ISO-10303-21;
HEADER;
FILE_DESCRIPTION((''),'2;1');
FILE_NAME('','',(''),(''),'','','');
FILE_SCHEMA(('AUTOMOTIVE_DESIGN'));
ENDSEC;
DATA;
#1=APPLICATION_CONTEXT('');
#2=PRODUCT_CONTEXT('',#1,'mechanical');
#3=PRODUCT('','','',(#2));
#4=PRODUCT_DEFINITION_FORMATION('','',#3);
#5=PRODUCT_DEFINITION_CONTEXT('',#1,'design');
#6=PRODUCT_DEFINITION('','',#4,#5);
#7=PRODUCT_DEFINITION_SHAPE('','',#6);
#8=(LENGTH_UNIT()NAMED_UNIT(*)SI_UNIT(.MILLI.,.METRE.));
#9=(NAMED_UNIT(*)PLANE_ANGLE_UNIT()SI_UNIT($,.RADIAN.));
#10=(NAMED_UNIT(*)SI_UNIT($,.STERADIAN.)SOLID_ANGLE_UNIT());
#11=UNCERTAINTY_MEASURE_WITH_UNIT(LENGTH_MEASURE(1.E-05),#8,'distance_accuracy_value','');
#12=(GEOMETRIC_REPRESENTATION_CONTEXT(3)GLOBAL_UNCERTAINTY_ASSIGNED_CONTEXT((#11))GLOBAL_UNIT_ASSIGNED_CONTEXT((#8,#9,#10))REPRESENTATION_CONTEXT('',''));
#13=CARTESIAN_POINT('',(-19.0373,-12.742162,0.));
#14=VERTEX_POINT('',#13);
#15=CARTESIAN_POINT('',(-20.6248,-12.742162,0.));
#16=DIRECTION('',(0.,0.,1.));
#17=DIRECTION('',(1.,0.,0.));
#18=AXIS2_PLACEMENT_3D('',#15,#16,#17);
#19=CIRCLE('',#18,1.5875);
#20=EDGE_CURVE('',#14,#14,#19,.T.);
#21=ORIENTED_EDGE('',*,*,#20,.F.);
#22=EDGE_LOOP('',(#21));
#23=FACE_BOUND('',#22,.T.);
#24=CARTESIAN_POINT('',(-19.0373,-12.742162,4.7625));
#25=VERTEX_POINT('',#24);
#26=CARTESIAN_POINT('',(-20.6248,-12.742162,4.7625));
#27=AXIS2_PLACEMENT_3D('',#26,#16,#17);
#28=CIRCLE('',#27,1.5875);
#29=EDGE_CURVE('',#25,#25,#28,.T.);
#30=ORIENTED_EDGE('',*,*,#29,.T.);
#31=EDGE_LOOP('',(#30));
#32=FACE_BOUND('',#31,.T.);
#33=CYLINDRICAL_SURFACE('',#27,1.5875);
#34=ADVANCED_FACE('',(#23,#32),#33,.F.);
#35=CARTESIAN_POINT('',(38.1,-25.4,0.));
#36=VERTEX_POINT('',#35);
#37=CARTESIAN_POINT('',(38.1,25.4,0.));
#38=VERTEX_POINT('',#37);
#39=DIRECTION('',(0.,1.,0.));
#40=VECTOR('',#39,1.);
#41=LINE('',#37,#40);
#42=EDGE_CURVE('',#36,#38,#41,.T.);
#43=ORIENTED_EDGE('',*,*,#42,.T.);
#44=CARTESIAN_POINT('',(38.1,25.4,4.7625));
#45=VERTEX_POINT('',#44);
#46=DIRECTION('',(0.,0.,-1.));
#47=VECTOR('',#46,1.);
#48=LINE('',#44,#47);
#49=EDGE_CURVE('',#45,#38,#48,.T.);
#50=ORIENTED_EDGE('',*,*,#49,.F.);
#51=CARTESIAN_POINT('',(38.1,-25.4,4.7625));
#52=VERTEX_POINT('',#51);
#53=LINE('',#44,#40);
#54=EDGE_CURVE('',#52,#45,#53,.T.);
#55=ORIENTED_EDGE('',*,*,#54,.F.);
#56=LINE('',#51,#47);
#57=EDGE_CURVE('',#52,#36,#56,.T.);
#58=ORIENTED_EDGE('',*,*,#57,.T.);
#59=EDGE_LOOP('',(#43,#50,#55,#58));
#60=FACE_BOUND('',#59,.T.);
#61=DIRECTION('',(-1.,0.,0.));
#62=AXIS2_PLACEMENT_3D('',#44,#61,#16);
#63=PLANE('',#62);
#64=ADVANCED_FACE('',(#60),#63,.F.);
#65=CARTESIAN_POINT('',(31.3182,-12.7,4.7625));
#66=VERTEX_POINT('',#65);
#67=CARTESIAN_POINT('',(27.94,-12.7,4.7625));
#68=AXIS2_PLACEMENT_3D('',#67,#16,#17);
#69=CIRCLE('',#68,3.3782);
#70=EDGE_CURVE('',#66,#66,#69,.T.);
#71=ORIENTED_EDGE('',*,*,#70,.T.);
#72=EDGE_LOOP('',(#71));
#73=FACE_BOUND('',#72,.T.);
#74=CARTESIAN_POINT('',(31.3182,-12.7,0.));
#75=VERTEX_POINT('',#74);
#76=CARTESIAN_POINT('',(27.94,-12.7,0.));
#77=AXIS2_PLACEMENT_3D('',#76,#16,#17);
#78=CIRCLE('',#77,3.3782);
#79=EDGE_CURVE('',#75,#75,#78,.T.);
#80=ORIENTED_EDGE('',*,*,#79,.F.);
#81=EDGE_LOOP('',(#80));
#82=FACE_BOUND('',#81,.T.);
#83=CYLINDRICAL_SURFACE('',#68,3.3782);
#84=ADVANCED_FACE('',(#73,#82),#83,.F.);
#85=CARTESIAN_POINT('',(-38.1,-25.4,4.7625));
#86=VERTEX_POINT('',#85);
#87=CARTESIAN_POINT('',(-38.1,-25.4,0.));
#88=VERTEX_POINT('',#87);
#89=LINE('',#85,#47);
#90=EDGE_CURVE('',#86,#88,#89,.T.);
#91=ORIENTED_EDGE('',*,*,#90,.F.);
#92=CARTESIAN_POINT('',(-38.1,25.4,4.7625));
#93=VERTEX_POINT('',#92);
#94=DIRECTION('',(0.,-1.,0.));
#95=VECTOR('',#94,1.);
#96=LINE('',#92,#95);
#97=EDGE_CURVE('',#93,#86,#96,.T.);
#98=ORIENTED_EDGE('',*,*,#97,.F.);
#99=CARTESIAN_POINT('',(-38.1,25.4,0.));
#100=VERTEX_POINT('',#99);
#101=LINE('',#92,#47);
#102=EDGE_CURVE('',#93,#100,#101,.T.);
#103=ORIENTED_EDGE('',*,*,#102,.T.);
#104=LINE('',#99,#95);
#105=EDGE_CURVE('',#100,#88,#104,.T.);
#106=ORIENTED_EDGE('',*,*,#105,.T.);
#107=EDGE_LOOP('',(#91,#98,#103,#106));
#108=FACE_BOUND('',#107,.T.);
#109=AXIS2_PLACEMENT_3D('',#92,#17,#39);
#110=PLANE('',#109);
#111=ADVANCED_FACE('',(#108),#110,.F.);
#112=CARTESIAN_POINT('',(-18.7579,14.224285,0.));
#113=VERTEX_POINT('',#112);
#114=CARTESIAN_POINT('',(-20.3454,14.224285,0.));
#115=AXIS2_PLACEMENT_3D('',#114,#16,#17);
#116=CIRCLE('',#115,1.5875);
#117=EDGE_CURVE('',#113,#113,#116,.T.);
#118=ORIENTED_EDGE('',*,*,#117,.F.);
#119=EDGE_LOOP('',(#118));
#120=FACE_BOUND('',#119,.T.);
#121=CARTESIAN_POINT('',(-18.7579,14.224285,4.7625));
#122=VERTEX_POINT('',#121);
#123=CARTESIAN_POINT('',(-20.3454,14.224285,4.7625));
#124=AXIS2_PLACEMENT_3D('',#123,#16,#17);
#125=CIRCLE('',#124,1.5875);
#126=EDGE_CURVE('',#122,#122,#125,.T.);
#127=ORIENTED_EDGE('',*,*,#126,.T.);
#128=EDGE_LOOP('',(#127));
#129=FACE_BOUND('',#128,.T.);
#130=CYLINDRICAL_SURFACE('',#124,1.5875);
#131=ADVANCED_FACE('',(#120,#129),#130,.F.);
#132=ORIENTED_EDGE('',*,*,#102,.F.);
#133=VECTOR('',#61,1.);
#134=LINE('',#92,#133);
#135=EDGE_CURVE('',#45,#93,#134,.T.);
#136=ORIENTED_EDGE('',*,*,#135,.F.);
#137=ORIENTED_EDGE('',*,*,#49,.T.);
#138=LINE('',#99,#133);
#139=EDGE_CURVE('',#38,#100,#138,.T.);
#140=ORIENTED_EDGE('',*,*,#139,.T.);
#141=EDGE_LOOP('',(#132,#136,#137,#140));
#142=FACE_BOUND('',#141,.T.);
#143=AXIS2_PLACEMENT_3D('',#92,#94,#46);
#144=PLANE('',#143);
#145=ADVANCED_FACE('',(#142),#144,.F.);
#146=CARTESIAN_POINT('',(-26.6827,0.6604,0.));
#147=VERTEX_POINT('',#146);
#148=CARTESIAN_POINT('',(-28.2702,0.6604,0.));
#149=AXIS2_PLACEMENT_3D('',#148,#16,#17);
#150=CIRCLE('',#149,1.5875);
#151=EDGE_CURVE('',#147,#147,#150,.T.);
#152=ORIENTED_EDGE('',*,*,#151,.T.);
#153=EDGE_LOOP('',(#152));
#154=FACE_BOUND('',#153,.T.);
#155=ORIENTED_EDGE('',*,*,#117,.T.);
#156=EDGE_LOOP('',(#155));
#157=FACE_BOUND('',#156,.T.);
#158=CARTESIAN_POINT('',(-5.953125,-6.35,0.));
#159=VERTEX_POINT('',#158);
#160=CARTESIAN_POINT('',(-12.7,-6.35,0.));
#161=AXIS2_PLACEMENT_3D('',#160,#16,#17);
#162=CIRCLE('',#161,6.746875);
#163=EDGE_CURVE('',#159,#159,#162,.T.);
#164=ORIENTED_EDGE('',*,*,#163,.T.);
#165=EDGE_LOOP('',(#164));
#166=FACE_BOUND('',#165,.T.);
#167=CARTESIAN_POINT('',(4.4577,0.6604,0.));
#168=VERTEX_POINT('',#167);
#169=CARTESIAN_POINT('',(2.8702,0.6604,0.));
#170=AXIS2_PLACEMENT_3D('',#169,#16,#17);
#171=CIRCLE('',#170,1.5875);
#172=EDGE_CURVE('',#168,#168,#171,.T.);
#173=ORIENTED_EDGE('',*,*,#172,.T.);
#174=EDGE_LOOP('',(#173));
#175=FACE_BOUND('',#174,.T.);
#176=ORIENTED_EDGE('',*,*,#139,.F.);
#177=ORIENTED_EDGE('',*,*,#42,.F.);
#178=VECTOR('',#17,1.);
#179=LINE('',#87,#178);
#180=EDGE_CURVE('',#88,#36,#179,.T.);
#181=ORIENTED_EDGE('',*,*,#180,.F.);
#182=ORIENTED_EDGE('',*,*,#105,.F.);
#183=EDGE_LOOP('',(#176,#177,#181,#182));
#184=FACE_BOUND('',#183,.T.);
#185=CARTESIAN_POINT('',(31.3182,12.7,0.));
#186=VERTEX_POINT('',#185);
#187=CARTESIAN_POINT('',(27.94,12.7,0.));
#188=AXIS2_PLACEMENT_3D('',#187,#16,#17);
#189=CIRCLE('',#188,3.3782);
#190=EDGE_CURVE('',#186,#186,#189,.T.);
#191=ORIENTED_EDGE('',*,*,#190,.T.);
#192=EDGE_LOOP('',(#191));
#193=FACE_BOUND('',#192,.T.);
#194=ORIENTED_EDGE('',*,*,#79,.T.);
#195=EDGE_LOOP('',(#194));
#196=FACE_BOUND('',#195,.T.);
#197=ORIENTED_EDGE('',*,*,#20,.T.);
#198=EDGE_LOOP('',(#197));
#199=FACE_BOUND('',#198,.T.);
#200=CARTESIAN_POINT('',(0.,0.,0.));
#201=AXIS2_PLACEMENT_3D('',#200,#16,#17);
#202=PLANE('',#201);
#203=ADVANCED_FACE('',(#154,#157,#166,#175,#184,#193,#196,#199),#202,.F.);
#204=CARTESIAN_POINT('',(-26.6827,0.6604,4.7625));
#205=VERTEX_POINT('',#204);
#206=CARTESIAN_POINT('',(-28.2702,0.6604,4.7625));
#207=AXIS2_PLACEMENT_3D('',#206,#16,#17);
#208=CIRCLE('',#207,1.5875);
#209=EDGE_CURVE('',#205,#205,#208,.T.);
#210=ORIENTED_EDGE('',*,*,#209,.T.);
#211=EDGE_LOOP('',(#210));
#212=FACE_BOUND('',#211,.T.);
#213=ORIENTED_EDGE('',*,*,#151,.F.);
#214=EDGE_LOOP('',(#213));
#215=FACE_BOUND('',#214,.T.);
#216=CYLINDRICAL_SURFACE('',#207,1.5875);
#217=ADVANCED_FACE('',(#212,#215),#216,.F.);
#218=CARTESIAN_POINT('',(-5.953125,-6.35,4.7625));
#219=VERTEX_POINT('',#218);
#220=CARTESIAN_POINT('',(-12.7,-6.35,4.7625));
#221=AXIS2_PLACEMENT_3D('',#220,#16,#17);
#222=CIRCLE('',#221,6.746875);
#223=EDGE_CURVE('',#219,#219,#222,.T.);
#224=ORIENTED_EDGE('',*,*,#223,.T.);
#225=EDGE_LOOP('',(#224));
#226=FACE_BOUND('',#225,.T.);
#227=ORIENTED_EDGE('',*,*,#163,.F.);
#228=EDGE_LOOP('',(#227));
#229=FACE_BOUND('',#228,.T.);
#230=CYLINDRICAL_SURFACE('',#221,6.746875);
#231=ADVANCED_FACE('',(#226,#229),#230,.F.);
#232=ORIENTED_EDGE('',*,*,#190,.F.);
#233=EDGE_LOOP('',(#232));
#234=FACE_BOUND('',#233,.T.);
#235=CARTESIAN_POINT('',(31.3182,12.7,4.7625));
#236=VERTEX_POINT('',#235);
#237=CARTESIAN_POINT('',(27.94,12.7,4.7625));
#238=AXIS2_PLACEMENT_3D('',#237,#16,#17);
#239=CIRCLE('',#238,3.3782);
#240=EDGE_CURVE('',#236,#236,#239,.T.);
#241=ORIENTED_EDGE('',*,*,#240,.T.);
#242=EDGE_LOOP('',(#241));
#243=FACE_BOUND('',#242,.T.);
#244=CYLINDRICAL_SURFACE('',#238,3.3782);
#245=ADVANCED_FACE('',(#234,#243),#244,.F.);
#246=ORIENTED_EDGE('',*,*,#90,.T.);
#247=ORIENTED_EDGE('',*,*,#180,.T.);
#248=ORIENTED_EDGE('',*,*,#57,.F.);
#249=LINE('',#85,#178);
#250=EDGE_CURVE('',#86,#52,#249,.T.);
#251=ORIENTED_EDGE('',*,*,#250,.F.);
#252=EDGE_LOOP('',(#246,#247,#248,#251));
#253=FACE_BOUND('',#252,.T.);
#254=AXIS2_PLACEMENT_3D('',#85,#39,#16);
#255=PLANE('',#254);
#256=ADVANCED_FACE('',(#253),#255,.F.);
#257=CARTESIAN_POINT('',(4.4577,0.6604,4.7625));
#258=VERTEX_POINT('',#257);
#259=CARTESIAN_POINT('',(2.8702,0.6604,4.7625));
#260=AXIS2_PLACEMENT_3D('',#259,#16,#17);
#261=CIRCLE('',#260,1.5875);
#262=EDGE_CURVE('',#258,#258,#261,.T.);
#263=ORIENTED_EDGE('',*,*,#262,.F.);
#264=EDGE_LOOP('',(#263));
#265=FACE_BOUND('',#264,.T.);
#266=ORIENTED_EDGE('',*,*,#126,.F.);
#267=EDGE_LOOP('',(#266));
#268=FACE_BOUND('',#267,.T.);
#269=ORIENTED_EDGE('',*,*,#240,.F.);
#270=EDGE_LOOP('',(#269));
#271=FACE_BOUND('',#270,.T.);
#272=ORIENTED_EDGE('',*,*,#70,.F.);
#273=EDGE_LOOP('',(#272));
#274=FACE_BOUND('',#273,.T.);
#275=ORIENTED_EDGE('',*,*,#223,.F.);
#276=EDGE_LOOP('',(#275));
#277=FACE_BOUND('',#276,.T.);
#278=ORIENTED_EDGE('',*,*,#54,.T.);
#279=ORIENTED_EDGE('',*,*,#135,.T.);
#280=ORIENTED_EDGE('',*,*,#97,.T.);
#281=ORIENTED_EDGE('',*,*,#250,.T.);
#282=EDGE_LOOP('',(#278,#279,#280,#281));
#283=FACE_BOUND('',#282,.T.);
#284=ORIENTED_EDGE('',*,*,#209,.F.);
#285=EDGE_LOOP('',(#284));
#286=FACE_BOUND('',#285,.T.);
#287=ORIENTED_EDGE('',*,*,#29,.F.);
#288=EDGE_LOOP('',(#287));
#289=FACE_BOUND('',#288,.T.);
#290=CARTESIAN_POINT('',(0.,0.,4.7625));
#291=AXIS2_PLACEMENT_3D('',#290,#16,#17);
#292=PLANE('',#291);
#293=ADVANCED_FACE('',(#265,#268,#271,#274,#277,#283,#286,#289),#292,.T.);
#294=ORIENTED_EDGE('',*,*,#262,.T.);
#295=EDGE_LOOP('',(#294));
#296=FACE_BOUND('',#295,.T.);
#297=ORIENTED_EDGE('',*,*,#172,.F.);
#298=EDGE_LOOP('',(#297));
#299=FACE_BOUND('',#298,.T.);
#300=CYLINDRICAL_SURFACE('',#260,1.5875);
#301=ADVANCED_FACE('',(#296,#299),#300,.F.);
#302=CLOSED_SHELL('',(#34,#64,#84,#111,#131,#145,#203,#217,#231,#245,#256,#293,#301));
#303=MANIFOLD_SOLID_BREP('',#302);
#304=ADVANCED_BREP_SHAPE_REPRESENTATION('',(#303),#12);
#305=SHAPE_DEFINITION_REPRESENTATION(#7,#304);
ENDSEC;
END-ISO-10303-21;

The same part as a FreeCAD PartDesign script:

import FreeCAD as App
import Part
import Sketcher

V = App.Vector
Q = App.Units.Quantity

doc = App.newDocument("Part")
params = doc.addObject("Spreadsheet::Sheet", "Params")
for row, (alias, value) in enumerate([
    ("sketch1_width", "3 in"),
    ("sketch1_height", "2 in"),
    ("pad1_length", "0.1875 in"),
    ("sketch2_diameter", "0.53125 in"),
    ("hole_diameter", "0.53125 in"),
    ("sketch3_diameter", "0.125 in"),
    ("hole2_diameter", "0.125 in"),
    ("sketch4_diameter", "0.266 in"),
    ("hole3_diameter", "0.266 in"),
], start=1):
    params.set(f"A{row}", alias)
    params.set(f"B{row}", "=" + value)
    params.setAlias(f"B{row}", alias)

body = doc.addObject("PartDesign::Body", "Body")

# Sketch on XY plane
sketch1 = doc.addObject("Sketcher::SketchObject", "Sketch")
body.addObject(sketch1)
sketch1.AttachmentSupport = (doc.XY_Plane, [""])
sketch1.MapMode = "FlatFace"
sketch1.addGeometry([
    Part.LineSegment(V(-38, 25, 0), V(-38, -25, 0)),
    Part.LineSegment(V(-38, -25, 0), V(38, -25, 0)),
    Part.LineSegment(V(38, -25, 0), V(38, 25, 0)),
    Part.LineSegment(V(38, 25, 0), V(-38, 25, 0)),
], False)
sketch1.addConstraint([
    Sketcher.Constraint("Coincident", 0, 2, 1, 1),
    Sketcher.Constraint("Coincident", 1, 2, 2, 1),
    Sketcher.Constraint("Coincident", 2, 2, 3, 1),
    Sketcher.Constraint("Coincident", 3, 2, 0, 1),
    Sketcher.Constraint("Vertical", 0),
    Sketcher.Constraint("Horizontal", 1),
    Sketcher.Constraint("Vertical", 2),
    Sketcher.Constraint("Horizontal", 3),
    Sketcher.Constraint("Symmetric", 0, 2, 2, 2, -1, 1),
    Sketcher.Constraint("DistanceX", 1, 1, 1, 2, Q("3 in")),
    Sketcher.Constraint("DistanceY", 0, 2, 0, 1, Q("2 in")),
])
sketch1.setExpression("Constraints[9]", "Params.sketch1_width")
sketch1.setExpression("Constraints[10]", "Params.sketch1_height")
pad1 = doc.addObject("PartDesign::Pad", "Pad")
body.addObject(pad1)
pad1.Profile = sketch1
pad1.setExpression("Length", "Params.pad1_length")

# Sketch on XY plane
sketch2 = doc.addObject("Sketcher::SketchObject", "Sketch001")
body.addObject(sketch2)
sketch2.AttachmentSupport = (doc.XY_Plane, [""])
sketch2.MapMode = "FlatFace"
sketch2.AttachmentOffset = App.Placement(V(0, 0, 0.1875 * 25.4), App.Rotation())
sketch2.addGeometry(Part.Circle(V(-13, -6, 0), V(0, 0, 1), 7), False)
sketch2.addConstraint([
    Sketcher.Constraint("Diameter", 0, Q("0.53125 in")),
    Sketcher.Constraint("DistanceX", 0, 3, -1, 1, Q("0.5 in")),
    Sketcher.Constraint("DistanceY", 0, 3, -1, 1, Q("0.25 in")),
])
sketch2.setExpression("Constraints[0]", "Params.sketch2_diameter")
doc.recompute()
hole = doc.addObject("PartDesign::Hole", "Hole")
body.addObject(hole)
hole.Profile = sketch2
hole.ThreadType = "None"
hole.setExpression("Diameter", "Params.hole_diameter")
hole.DepthType = "ThroughAll"

# Sketch on XY plane
sketch3 = doc.addObject("Sketcher::SketchObject", "Sketch002")
body.addObject(sketch3)
sketch3.AttachmentSupport = (doc.XY_Plane, [""])
sketch3.MapMode = "FlatFace"
sketch3.AttachmentOffset = App.Placement(V(0, 0, 0.1875 * 25.4), App.Rotation())
sketch3.addGeometry([
    Part.Circle(V(-20.3, 14.2, 0), V(0, 0, 1), 1.6),
    Part.Circle(V(-28.3, 0.7, 0), V(0, 0, 1), 1.6),
    Part.Circle(V(-20.6, -12.7, 0), V(0, 0, 1), 1.6),
    Part.Circle(V(2.9, 0.7, 0), V(0, 0, 1), 1.6),
], False)
sketch3.addConstraint([
    Sketcher.Constraint("Equal", 0, 1),
    Sketcher.Constraint("Equal", 1, 2),
    Sketcher.Constraint("Equal", 2, 3),
    Sketcher.Constraint("Horizontal", 1, 3, 3, 3),
    Sketcher.Constraint("Diameter", 0, Q("0.125 in")),
    Sketcher.Constraint("DistanceX", 0, 3, -1, 1, Q("0.801 in")),
    Sketcher.Constraint("DistanceX", 1, 3, -1, 1, Q("1.113 in")),
    Sketcher.Constraint("DistanceY", -1, 1, 1, 3, Q("0.026 in")),
    Sketcher.Constraint("DistanceX", 2, 3, -1, 1, Q("0.812 in")),
    Sketcher.Constraint("DistanceX", -1, 1, 3, 3, Q("0.113 in")),
    Sketcher.Constraint("DistanceY", -1, 1, 0, 3, 14.224285),
    Sketcher.Constraint("DistanceY", 2, 3, -1, 1, 12.742162),
])
sketch3.setExpression("Constraints[4]", "Params.sketch3_diameter")
doc.recompute()
hole2 = doc.addObject("PartDesign::Hole", "Hole001")
body.addObject(hole2)
hole2.Profile = sketch3
hole2.ThreadType = "None"
hole2.setExpression("Diameter", "Params.hole2_diameter")
hole2.DepthType = "ThroughAll"

# Sketch on XY plane
sketch4 = doc.addObject("Sketcher::SketchObject", "Sketch003")
body.addObject(sketch4)
sketch4.AttachmentSupport = (doc.XY_Plane, [""])
sketch4.MapMode = "FlatFace"
sketch4.AttachmentOffset = App.Placement(V(0, 0, 0.1875 * 25.4), App.Rotation())
sketch4.addGeometry([
    Part.Circle(V(27.9, 12.7, 0), V(0, 0, 1), 3.4),
    Part.Circle(V(27.9, -12.7, 0), V(0, 0, 1), 3.4),
], False)
sketch4.addConstraint([
    Sketcher.Constraint("Equal", 0, 1),
    Sketcher.Constraint("Symmetric", 0, 3, 1, 3, -1),
    Sketcher.Constraint("Diameter", 0, Q("0.266 in")),
    Sketcher.Constraint("DistanceY", 1, 3, 0, 3, Q("1 in")),
    Sketcher.Constraint("DistanceX", -1, 1, 0, 3, Q("1.1 in")),
])
sketch4.setExpression("Constraints[2]", "Params.sketch4_diameter")
doc.recompute()
hole3 = doc.addObject("PartDesign::Hole", "Hole002")
body.addObject(hole3)
hole3.Profile = sketch4
hole3.ThreadType = "None"
hole3.setExpression("Diameter", "Params.hole3_diameter")
hole3.DepthType = "ThroughAll"

doc.recompute()
